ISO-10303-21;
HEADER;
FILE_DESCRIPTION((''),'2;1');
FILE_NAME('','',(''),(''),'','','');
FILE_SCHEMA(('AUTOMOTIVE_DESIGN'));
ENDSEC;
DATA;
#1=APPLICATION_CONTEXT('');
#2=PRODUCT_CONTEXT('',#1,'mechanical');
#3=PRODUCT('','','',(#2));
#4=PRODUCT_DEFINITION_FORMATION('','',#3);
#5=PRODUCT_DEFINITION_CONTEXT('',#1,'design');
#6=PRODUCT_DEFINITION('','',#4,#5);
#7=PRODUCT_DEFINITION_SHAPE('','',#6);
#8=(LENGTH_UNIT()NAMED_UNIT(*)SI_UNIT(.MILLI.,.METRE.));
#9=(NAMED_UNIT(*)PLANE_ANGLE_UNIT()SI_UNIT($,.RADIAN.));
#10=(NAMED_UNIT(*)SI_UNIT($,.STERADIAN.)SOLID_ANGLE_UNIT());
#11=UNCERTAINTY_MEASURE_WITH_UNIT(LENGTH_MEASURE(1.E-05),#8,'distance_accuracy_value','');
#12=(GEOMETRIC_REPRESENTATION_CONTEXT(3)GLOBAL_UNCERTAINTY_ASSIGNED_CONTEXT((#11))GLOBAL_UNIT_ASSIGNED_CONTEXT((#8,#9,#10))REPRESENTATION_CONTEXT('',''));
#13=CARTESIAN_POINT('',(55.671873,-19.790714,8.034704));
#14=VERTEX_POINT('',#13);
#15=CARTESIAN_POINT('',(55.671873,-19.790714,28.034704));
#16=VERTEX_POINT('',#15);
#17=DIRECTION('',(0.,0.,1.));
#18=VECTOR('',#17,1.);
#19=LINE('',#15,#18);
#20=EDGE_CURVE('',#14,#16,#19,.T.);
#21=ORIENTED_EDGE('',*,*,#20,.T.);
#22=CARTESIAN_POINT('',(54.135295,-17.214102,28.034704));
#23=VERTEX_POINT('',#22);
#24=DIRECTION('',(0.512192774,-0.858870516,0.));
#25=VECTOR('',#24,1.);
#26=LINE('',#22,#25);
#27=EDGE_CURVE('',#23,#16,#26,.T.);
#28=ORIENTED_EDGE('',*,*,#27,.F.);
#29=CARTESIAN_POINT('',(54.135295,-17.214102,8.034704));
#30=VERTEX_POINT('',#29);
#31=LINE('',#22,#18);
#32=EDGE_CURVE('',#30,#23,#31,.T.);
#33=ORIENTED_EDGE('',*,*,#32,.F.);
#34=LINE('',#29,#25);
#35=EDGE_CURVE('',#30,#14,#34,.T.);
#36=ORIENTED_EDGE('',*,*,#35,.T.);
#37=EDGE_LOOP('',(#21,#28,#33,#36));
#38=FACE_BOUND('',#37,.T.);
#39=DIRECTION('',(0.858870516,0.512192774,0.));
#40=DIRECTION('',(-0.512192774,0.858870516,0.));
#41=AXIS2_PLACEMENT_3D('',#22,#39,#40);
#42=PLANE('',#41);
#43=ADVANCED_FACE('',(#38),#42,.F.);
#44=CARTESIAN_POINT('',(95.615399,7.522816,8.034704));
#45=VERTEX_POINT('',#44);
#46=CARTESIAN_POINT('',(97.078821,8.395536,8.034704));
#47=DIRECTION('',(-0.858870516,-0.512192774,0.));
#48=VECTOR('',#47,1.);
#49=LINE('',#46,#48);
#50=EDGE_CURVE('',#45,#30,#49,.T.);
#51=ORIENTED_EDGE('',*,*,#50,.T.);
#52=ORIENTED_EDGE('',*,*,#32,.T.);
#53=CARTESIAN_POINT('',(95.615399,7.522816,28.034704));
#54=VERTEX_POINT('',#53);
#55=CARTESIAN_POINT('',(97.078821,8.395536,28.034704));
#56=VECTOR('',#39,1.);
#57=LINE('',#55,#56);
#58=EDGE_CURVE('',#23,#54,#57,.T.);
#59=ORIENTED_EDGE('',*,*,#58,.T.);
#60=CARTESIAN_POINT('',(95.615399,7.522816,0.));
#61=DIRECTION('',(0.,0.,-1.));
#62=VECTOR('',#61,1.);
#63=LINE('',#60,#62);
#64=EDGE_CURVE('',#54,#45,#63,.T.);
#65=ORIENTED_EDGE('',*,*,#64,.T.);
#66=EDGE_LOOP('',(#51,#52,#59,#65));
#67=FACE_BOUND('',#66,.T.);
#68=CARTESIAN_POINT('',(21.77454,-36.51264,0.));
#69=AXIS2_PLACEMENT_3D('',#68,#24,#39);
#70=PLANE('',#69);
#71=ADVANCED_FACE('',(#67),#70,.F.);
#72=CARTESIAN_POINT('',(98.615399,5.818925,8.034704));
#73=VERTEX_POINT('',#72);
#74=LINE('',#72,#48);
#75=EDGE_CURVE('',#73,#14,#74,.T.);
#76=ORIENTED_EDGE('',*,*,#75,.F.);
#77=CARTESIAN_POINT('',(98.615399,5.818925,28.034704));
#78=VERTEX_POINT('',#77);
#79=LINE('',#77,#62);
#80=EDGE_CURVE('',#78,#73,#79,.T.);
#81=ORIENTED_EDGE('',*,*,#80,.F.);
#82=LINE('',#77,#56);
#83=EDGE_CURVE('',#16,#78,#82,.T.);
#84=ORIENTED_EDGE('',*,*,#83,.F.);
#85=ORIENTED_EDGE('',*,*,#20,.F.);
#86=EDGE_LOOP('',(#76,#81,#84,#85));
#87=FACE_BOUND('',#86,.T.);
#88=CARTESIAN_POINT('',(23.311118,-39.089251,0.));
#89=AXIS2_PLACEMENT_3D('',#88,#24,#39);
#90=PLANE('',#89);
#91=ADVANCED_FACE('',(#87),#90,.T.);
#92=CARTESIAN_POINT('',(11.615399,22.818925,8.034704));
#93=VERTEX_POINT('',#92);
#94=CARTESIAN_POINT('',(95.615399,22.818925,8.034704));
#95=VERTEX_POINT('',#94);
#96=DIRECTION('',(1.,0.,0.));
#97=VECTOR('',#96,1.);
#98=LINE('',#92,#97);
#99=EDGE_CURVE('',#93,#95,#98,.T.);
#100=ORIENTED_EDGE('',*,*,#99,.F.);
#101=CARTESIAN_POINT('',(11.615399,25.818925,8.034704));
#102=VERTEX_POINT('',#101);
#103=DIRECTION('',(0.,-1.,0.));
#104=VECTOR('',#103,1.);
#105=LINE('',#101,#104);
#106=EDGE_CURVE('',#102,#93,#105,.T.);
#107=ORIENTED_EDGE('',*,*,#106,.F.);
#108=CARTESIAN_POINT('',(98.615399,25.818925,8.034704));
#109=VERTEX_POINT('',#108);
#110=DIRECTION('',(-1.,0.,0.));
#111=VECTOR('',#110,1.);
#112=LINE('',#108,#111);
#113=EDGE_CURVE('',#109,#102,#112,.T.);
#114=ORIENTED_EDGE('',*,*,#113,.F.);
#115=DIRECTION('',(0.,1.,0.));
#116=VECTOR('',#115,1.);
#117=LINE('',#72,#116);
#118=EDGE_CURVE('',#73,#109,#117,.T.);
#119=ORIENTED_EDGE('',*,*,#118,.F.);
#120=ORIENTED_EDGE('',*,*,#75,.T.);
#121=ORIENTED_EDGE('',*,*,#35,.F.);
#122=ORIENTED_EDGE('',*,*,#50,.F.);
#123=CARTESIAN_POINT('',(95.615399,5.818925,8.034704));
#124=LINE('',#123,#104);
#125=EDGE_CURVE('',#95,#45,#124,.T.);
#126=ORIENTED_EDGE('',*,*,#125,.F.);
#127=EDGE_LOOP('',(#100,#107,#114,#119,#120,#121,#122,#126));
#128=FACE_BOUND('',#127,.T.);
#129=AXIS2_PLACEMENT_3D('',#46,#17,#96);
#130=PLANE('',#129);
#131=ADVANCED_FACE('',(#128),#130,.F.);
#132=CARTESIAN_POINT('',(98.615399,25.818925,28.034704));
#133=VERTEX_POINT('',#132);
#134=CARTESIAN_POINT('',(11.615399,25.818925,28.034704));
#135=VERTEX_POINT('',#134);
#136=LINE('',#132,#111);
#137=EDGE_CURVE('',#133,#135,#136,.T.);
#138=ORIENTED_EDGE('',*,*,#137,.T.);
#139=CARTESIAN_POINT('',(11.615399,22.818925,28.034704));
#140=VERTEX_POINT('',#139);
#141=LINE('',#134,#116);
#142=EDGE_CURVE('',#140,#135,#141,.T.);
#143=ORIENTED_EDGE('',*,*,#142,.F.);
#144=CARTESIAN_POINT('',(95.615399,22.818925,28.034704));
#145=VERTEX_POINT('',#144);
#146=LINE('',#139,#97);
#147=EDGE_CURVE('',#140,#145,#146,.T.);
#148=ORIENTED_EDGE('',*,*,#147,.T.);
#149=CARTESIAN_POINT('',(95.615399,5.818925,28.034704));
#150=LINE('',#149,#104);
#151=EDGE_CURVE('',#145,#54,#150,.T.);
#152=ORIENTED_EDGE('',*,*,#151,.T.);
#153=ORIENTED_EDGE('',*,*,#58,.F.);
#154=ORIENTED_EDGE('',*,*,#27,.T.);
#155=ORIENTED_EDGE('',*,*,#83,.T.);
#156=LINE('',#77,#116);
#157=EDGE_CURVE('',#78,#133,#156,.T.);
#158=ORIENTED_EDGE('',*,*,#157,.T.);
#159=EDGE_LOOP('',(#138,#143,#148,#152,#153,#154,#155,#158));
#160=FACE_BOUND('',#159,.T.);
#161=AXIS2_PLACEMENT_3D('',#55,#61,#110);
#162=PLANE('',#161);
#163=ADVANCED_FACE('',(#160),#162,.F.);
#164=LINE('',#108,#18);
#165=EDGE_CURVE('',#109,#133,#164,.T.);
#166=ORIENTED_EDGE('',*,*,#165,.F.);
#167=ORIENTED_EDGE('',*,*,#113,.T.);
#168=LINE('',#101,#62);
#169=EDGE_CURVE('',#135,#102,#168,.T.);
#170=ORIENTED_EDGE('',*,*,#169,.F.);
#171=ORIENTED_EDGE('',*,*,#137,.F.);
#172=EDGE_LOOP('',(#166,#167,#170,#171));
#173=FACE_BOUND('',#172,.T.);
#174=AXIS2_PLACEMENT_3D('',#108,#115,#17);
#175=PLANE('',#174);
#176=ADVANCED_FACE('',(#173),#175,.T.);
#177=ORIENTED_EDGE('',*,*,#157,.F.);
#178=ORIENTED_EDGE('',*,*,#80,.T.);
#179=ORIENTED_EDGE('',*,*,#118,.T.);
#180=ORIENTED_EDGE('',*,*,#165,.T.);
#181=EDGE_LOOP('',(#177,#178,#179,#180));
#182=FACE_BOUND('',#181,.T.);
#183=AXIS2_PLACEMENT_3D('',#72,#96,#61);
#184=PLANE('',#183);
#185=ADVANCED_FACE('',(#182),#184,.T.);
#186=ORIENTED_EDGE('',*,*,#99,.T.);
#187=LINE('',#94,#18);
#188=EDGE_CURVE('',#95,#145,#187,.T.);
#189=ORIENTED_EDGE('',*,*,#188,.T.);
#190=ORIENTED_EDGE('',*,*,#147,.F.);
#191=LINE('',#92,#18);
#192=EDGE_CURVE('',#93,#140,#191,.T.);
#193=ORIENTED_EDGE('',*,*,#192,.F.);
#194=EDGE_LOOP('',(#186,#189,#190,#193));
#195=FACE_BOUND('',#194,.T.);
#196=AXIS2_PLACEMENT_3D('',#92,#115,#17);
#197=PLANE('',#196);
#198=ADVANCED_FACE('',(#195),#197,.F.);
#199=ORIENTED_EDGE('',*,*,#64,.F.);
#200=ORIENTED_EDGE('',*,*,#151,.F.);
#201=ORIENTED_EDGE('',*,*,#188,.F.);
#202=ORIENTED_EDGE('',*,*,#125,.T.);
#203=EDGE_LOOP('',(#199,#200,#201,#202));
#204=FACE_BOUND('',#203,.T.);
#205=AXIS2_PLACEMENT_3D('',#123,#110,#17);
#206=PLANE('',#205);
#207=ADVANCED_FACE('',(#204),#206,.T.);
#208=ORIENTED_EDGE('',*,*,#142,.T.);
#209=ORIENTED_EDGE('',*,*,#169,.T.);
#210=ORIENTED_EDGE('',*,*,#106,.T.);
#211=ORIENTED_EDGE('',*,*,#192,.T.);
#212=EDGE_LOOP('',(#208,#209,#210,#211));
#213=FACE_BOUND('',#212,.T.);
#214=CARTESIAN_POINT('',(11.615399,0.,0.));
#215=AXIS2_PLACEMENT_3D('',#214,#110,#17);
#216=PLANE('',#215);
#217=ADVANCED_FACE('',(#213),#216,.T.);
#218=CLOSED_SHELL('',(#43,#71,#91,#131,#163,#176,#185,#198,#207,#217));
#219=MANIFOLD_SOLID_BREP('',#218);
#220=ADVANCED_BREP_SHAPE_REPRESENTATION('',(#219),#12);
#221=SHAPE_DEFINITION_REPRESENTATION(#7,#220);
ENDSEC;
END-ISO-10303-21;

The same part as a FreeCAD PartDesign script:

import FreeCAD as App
import Part
import Sketcher

V = App.Vector
Q = App.Units.Quantity


def add_polygon(sketch, points):
    """Adds a closed chain of lines whose ends are joined by coincident constraints."""
    first, n = sketch.GeometryCount, len(points)
    for a, b in zip(points, points[1:] + points[:1]):
        sketch.addGeometry(Part.LineSegment(App.Vector(*a, 0), App.Vector(*b, 0)), False)
    for i in range(n):
        sketch.addConstraint(Sketcher.Constraint("Coincident", first + i, 2, first + (i + 1) % n, 1))

doc = App.newDocument("Part")
body = doc.addObject("PartDesign::Body", "Body")

sketch1 = body.newObject("Sketcher::SketchObject", "Sketch")
sketch1.Placement = App.Placement(V(23.311118, -39.089251, 0), App.Rotation(V(0, 0, 1), V(0.858870516, 0.512192774, 0), V(-0.512192774, 0.858870516, 0), "ZXY"))
add_polygon(sketch1, [(8, 88), (8, 38), (28, 38), (28, 88)])
sketch1.addConstraint([
    Sketcher.Constraint("Vertical", 0),
    Sketcher.Constraint("Horizontal", 1),
    Sketcher.Constraint("Vertical", 2),
    Sketcher.Constraint("Horizontal", 3),
    Sketcher.Constraint("DistanceX", 1, 1, 1, 2, Q("20 mm")),
    Sketcher.Constraint("DistanceY", 0, 2, 0, 1, Q("50 mm")),
    Sketcher.Constraint("DistanceY", -1, 1, 0, 2, Q("37.67827 mm")),
    Sketcher.Constraint("DistanceX", -1, 1, 0, 2, Q("8.034704 mm")),
])
pad1 = body.newObject("PartDesign::Pad", "Pad")
pad1.Profile = sketch1
pad1.Length = 3

sketch2 = body.newObject("Sketcher::SketchObject", "Sketch001")
sketch2.AttachmentSupport = (doc.getObject("XY_Plane"), [""])
sketch2.MapMode = "FlatFace"
sketch2.AttachmentOffset = App.Placement(V(0, 0, 28.034704), App.Rotation())
add_polygon(sketch2, [(95.6, 25.8), (95.6, 5.8), (98.6, 5.8), (98.6, 25.8)])
sketch2.addConstraint([
    Sketcher.Constraint("Vertical", 0),
    Sketcher.Constraint("Horizontal", 1),
    Sketcher.Constraint("Vertical", 2),
    Sketcher.Constraint("Horizontal", 3),
    Sketcher.Constraint("DistanceX", 1, 1, 1, 2, Q("3 mm")),
    Sketcher.Constraint("DistanceY", 0, 2, 0, 1, Q("20 mm")),
    Sketcher.Constraint("DistanceX", -1, 1, 0, 2, Q("95.615399 mm")),
    Sketcher.Constraint("DistanceY", -1, 1, 0, 2, Q("5.818925 mm")),
])
pad2 = body.newObject("PartDesign::Pad", "Pad001")
pad2.Profile = sketch2
pad2.Length = 20
pad2.Reversed = True

sketch3 = body.newObject("Sketcher::SketchObject", "Sketch002")
sketch3.AttachmentSupport = (doc.getObject("YZ_Plane"), [""])
sketch3.MapMode = "FlatFace"
sketch3.AttachmentOffset = App.Placement(V(0, 0, 95.615399), App.Rotation())
add_polygon(sketch3, [(25.8, 8), (22.8, 8), (22.8, 28), (25.8, 28)])
sketch3.addConstraint([
    Sketcher.Constraint("Horizontal", 0),
    Sketcher.Constraint("Vertical", 1),
    Sketcher.Constraint("Horizontal", 2),
    Sketcher.Constraint("Vertical", 3),
    Sketcher.Constraint("DistanceX", 0, 2, 0, 1, Q("3 mm")),
    Sketcher.Constraint("DistanceY", 1, 1, 1, 2, Q("20 mm")),
    Sketcher.Constraint("DistanceX", -1, 1, 0, 2, Q("22.818925 mm")),
    Sketcher.Constraint("DistanceY", -1, 1, 0, 2, Q("8.034704 mm")),
])
pad3 = body.newObject("PartDesign::Pad", "Pad002")
pad3.Profile = sketch3
pad3.Length = 84
pad3.Reversed = True

doc.recompute()
